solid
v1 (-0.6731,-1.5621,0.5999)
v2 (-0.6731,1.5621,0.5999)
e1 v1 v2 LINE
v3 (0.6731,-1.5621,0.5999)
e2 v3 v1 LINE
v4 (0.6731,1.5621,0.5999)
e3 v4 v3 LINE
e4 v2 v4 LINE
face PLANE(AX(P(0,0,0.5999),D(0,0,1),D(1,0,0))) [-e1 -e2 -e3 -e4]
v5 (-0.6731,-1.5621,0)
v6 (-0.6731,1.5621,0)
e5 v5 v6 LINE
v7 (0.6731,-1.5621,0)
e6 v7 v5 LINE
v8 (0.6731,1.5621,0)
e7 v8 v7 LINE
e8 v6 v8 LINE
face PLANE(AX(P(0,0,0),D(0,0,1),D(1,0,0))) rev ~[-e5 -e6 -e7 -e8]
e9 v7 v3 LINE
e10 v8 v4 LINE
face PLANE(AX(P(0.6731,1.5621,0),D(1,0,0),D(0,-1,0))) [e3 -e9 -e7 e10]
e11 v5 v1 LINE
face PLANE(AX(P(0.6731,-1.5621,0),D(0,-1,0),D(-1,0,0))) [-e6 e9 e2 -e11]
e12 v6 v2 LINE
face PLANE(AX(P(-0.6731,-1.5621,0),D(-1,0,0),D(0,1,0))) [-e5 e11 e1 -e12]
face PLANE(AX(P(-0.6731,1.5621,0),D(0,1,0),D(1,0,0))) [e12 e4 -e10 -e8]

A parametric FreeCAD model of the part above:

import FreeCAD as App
import Part
import Sketcher
from FreeCAD import Vector
Q = App.Units.Quantity

doc = App.newDocument("Part")
params = doc.addObject("Spreadsheet::Sheet", "Params")
for row, (alias, value) in enumerate([
    ("sketch1_width", "0.053 in"),
    ("sketch1_height", "0.123 in"),
    ("pad1_length", "0.5999 mm"),
], start=1):
    params.set(f"A{row}", alias)
    params.set(f"B{row}", "=" + value)
    params.setAlias(f"B{row}", alias)

body = doc.addObject("PartDesign::Body", "Body")

# Sketch on XY plane
sketch1 = doc.addObject("Sketcher::SketchObject", "Sketch")
body.addObject(sketch1)
sketch1.AttachmentSupport = (doc.XY_Plane, [""])
sketch1.MapMode = "FlatFace"
sketch1.addGeometry(Part.LineSegment(Vector(0.7, 1.6, 0), Vector(-0.7, 1.6, 0)), False)
sketch1.addGeometry(Part.LineSegment(Vector(-0.7, 1.6, 0), Vector(-0.7, -1.6, 0)), False)
sketch1.addGeometry(Part.LineSegment(Vector(-0.7, -1.6, 0), Vector(0.7, -1.6, 0)), False)
sketch1.addGeometry(Part.LineSegment(Vector(0.7, -1.6, 0), Vector(0.7, 1.6, 0)), False)
sketch1.addConstraint(Sketcher.Constraint("Coincident", 0, 2, 1, 1))
sketch1.addConstraint(Sketcher.Constraint("Coincident", 1, 2, 2, 1))
sketch1.addConstraint(Sketcher.Constraint("Coincident", 2, 2, 3, 1))
sketch1.addConstraint(Sketcher.Constraint("Coincident", 3, 2, 0, 1))
sketch1.addConstraint(Sketcher.Constraint("Horizontal", 0))
sketch1.addConstraint(Sketcher.Constraint("Vertical", 1))
sketch1.addConstraint(Sketcher.Constraint("Horizontal", 2))
sketch1.addConstraint(Sketcher.Constraint("Vertical", 3))
sketch1.addConstraint(Sketcher.Constraint("Symmetric", 0, 2, 2, 2, -1, 1))
sketch1.addConstraint(Sketcher.Constraint("DistanceX", 0, 2, 0, 1, Q("0.053 in")))
sketch1.addConstraint(Sketcher.Constraint("DistanceY", 1, 2, 1, 1, Q("0.123 in")))
sketch1.setExpression("Constraints[9]", "Params.sketch1_width")
sketch1.setExpression("Constraints[10]", "Params.sketch1_height")
pad1 = doc.addObject("PartDesign::Pad", "Pad")
body.addObject(pad1)
pad1.Profile = sketch1
pad1.setExpression("Length", "Params.pad1_length")

doc.recompute()
